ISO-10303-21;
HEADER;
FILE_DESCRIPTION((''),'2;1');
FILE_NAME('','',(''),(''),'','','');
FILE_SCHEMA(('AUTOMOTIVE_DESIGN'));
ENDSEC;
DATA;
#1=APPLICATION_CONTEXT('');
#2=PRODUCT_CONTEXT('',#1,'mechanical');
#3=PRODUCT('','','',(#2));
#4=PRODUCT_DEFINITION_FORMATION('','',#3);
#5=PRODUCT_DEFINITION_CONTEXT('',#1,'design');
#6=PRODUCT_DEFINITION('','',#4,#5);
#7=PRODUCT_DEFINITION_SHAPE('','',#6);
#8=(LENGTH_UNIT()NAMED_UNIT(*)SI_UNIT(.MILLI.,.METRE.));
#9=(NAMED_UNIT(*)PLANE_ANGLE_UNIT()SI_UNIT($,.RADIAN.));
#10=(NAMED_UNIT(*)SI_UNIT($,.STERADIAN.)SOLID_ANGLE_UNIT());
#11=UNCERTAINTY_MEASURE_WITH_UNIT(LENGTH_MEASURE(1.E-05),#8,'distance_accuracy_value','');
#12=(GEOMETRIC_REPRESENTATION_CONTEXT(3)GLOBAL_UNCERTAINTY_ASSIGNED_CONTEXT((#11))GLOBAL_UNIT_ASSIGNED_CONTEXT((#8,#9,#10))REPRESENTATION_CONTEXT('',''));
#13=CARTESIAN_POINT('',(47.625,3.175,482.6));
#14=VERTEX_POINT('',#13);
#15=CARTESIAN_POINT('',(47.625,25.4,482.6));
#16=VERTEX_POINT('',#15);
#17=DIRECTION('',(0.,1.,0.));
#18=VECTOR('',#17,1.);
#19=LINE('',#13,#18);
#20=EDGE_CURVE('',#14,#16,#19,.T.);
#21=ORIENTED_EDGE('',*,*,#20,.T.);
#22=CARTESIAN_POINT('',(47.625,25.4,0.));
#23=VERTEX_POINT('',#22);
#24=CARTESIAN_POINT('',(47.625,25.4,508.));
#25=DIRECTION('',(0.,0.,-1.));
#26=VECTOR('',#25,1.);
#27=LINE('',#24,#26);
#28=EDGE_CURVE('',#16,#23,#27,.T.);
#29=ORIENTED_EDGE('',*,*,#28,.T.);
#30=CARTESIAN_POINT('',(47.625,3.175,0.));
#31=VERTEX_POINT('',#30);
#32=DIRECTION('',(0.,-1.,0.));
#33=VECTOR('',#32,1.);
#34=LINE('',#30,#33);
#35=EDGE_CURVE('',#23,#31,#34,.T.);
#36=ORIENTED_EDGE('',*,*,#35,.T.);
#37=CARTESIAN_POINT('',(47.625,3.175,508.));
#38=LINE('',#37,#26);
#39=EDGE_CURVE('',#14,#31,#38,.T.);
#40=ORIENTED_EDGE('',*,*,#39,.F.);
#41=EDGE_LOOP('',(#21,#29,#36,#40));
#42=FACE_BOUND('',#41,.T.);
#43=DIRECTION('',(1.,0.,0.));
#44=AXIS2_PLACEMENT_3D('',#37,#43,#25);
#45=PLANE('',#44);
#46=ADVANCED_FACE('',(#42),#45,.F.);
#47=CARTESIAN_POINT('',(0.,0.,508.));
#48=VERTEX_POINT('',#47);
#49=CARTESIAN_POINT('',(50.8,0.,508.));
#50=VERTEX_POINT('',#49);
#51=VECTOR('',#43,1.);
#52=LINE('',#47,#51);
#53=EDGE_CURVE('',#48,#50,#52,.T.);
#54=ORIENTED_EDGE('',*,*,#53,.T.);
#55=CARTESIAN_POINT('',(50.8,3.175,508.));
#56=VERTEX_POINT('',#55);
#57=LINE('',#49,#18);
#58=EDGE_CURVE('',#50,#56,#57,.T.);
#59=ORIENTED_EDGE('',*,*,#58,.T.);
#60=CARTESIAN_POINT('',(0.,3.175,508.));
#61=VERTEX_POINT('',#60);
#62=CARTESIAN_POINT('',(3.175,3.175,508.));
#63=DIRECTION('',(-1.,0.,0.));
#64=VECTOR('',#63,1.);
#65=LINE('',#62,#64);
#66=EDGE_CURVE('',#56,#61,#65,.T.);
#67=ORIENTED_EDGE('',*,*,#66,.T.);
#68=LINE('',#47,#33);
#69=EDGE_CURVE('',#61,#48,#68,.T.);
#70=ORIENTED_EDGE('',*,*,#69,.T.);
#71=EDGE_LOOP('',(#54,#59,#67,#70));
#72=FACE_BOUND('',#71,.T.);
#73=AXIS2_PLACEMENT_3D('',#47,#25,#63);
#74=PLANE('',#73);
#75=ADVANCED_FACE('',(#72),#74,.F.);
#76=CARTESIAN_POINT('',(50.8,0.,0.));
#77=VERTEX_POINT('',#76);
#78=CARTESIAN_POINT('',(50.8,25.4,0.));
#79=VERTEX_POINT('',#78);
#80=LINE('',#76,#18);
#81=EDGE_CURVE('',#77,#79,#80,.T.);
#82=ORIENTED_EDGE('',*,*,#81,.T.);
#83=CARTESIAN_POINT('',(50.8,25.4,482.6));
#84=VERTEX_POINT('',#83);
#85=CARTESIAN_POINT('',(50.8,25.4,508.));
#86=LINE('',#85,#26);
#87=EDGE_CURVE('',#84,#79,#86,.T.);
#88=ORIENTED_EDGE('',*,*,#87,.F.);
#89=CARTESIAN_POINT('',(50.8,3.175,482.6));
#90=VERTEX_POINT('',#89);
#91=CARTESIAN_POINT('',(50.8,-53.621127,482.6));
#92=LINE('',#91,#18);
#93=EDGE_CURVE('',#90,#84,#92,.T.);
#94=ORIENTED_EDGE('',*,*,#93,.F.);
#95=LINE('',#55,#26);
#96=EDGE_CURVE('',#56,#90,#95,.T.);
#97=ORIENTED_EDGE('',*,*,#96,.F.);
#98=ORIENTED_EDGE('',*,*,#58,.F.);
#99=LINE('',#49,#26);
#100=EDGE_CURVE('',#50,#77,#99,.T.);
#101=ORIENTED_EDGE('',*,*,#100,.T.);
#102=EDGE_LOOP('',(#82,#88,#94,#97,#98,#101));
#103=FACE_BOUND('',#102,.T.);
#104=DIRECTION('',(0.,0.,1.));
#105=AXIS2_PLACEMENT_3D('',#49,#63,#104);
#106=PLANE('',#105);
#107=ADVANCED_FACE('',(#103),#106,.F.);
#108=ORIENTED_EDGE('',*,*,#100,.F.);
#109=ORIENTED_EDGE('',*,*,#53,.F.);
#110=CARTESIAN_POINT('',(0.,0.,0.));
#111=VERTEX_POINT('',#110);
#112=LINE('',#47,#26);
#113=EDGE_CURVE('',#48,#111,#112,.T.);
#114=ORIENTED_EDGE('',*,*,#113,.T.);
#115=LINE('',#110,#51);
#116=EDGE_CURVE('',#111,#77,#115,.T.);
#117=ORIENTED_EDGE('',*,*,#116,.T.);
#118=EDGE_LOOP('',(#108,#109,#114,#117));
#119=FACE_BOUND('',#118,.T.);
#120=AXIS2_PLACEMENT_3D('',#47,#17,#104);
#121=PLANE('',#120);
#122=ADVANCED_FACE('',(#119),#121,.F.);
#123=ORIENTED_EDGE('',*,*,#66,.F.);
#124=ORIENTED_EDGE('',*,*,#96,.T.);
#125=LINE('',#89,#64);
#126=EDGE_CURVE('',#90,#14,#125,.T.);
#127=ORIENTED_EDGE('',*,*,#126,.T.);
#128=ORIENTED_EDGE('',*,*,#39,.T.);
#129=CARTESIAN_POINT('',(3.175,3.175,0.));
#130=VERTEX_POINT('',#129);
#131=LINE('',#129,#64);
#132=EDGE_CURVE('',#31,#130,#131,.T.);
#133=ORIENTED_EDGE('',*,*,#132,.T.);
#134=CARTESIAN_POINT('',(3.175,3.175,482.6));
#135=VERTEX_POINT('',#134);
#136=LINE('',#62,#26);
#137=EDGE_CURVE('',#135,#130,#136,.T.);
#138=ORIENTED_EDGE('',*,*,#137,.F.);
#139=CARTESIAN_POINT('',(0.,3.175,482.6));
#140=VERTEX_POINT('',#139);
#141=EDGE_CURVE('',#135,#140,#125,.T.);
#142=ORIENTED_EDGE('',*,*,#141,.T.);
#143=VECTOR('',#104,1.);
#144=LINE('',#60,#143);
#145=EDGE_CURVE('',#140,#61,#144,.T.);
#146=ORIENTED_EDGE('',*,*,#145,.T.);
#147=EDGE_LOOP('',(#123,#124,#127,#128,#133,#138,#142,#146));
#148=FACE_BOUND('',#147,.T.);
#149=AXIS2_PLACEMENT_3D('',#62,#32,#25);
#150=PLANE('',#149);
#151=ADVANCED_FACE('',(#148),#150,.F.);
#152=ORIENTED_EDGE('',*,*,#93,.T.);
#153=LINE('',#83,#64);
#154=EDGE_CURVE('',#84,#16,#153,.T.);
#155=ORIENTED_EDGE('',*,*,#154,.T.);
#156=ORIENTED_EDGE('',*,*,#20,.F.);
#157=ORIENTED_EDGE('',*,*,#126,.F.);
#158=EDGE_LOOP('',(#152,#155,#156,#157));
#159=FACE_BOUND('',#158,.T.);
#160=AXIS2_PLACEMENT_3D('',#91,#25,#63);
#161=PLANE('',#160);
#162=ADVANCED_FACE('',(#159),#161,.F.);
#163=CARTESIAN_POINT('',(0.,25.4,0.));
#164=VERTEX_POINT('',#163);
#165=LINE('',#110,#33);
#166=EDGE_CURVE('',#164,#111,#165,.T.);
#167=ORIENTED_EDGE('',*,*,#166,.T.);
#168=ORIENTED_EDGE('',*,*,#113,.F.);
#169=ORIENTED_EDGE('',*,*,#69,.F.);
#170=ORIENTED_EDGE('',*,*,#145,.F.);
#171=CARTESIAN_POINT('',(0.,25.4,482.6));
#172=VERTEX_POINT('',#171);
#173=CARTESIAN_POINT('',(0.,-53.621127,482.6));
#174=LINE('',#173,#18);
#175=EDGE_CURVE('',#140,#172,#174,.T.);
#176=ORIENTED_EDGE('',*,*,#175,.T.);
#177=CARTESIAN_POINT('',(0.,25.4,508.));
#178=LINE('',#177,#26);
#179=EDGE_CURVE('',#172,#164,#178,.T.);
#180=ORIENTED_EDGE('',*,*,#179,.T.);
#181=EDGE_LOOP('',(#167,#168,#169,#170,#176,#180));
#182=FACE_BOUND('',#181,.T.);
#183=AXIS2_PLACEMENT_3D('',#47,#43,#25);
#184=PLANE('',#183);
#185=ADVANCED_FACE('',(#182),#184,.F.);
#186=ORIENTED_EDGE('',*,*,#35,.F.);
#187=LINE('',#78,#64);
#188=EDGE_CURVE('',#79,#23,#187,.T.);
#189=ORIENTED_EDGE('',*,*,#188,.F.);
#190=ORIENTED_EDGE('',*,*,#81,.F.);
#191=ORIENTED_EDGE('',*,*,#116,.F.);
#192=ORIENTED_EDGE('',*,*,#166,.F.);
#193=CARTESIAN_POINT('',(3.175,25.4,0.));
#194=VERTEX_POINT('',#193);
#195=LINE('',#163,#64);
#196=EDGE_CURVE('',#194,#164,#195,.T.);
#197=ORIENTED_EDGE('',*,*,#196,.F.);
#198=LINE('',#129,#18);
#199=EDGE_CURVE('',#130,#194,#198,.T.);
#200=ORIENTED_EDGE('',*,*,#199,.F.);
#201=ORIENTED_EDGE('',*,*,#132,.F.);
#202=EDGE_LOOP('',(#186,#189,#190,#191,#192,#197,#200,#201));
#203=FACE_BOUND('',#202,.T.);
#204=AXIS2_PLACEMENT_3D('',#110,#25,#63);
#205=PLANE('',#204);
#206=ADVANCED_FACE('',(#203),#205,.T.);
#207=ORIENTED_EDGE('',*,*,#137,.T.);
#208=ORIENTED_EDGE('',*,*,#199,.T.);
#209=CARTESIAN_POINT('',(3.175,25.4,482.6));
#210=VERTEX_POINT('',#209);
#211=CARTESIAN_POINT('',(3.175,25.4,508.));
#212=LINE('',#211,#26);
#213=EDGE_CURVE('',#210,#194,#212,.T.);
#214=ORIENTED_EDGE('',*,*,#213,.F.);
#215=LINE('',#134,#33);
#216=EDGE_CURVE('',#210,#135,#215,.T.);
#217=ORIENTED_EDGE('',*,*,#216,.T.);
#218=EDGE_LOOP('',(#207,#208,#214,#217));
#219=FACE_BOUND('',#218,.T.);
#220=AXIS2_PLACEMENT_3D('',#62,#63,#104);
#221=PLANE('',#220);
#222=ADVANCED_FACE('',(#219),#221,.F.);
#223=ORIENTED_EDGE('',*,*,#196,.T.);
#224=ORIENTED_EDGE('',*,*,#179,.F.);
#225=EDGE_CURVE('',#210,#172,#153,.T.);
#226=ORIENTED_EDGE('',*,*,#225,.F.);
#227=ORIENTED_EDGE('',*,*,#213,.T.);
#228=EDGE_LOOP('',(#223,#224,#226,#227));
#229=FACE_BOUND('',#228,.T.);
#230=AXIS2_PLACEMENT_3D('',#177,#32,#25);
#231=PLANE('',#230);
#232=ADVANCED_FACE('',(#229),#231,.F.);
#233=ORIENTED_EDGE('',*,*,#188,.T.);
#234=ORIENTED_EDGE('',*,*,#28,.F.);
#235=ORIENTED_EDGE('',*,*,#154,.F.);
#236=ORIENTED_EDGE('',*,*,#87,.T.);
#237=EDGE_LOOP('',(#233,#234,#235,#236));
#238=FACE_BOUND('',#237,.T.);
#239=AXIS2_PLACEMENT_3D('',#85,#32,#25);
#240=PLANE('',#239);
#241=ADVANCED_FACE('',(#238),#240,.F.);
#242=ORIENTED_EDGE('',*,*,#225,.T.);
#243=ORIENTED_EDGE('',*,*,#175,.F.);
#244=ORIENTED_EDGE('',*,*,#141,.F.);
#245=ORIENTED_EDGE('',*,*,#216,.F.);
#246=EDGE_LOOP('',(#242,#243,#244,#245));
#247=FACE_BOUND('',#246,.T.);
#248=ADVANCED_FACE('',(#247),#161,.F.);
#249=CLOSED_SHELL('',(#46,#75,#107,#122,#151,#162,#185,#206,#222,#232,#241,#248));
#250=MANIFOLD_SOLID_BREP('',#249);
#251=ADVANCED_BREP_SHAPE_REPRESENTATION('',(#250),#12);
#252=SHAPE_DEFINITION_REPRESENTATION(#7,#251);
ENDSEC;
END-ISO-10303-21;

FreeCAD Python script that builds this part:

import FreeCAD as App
import Part
import Sketcher
from FreeCAD import Vector
Q = App.Units.Quantity

doc = App.newDocument("Part")
body = doc.addObject("PartDesign::Body", "Body")

# Sketch on XY plane
sketch1 = body.newObject("Sketcher::SketchObject", "Sketch")
sketch1.AttachmentSupport = (doc.getObject("XY_Plane"), [""])
sketch1.MapMode = "FlatFace"
sketch1.addGeometry([
    Part.LineSegment(Vector(3.2, 3.2, 0), Vector(3.2, 25.4, 0)),  # 0
    Part.LineSegment(Vector(3.2, 25.4, 0), Vector(0, 25.4, 0)),  # 1
    Part.LineSegment(Vector(0, 25.4, 0), Vector(0, 0, 0)),  # 2
    Part.LineSegment(Vector(0, 0, 0), Vector(50.8, 0, 0)),  # 3
    Part.LineSegment(Vector(50.8, 0, 0), Vector(50.8, 25.4, 0)),  # 4
    Part.LineSegment(Vector(50.8, 25.4, 0), Vector(47.6, 25.4, 0)),  # 5
    Part.LineSegment(Vector(47.6, 25.4, 0), Vector(47.6, 3.2, 0)),  # 6
    Part.LineSegment(Vector(47.6, 3.2, 0), Vector(3.2, 3.2, 0)),  # 7
], False)
sketch1.addConstraint([
    Sketcher.Constraint("Coincident", 0, 2, 1, 1),
    Sketcher.Constraint("Coincident", 1, 2, 2, 1),
    Sketcher.Constraint("Coincident", 2, 2, 3, 1),
    Sketcher.Constraint("Coincident", 3, 2, 4, 1),
    Sketcher.Constraint("Coincident", 4, 2, 5, 1),
    Sketcher.Constraint("Coincident", 5, 2, 6, 1),
    Sketcher.Constraint("Coincident", 6, 2, 7, 1),
    Sketcher.Constraint("Coincident", 7, 2, 0, 1),
    Sketcher.Constraint("Vertical", 0),
    Sketcher.Constraint("Horizontal", 1),
    Sketcher.Constraint("Vertical", 2),
    Sketcher.Constraint("Horizontal", 3),
    Sketcher.Constraint("Vertical", 4),
    Sketcher.Constraint("Horizontal", 5),
    Sketcher.Constraint("Vertical", 6),
    Sketcher.Constraint("Horizontal", 7),
    Sketcher.Constraint("Coincident", 2, 2, -1, 1),
    Sketcher.Constraint("Horizontal", 1, 2, 4, 2),
    Sketcher.Constraint("Equal", 1, 5),
    Sketcher.Constraint("DistanceX", 3, 1, 3, 2, Q("2 in")),
    Sketcher.Constraint("DistanceY", 2, 2, 2, 1, Q("1 in")),
    Sketcher.Constraint("DistanceX", 7, 2, 7, 1, Q("1.75 in")),
    Sketcher.Constraint("DistanceY", 0, 1, 0, 2, Q("0.875 in")),
])
pad1 = body.newObject("PartDesign::Pad", "Pad")
pad1.Profile = sketch1
pad1.Length = Q("20 in")

# Sketch on XZ plane
sketch2 = body.newObject("Sketcher::SketchObject", "Sketch001")
sketch2.AttachmentSupport = (doc.getObject("XZ_Plane"), [""])
sketch2.MapMode = "FlatFace"
sketch2.AttachmentOffset = App.Placement(Vector(0, 0, -1 * 25.4), App.Rotation())
sketch2.addGeometry([
    Part.LineSegment(Vector(0, 483, 0), Vector(0, 508, 0)),
    Part.LineSegment(Vector(0, 508, 0), Vector(51, 508, 0)),
    Part.LineSegment(Vector(51, 508, 0), Vector(51, 483, 0)),
    Part.LineSegment(Vector(51, 483, 0), Vector(0, 483, 0)),
], False)
sketch2.addConstraint([
    Sketcher.Constraint("Coincident", 0, 2, 1, 1),
    Sketcher.Constraint("Coincident", 1, 2, 2, 1),
    Sketcher.Constraint("Coincident", 2, 2, 3, 1),
    Sketcher.Constraint("Coincident", 3, 2, 0, 1),
    Sketcher.Constraint("Vertical", 0),
    Sketcher.Constraint("Horizontal", 1),
    Sketcher.Constraint("Vertical", 2),
    Sketcher.Constraint("Horizontal", 3),
    Sketcher.Constraint("PointOnObject", 0, 2, -2),
    Sketcher.Constraint("DistanceX", 1, 1, 1, 2, Q("2 in")),
    Sketcher.Constraint("DistanceY", 0, 1, 0, 2, Q("1 in")),
    Sketcher.Constraint("DistanceY", -1, 1, 0, 2, Q("20 in")),
])
pocket1 = body.newObject("PartDesign::Pocket", "Pocket")
pocket1.Profile = sketch2
pocket1.Length = Q("0.875 in")
pocket1.Reversed = True

doc.recompute()
